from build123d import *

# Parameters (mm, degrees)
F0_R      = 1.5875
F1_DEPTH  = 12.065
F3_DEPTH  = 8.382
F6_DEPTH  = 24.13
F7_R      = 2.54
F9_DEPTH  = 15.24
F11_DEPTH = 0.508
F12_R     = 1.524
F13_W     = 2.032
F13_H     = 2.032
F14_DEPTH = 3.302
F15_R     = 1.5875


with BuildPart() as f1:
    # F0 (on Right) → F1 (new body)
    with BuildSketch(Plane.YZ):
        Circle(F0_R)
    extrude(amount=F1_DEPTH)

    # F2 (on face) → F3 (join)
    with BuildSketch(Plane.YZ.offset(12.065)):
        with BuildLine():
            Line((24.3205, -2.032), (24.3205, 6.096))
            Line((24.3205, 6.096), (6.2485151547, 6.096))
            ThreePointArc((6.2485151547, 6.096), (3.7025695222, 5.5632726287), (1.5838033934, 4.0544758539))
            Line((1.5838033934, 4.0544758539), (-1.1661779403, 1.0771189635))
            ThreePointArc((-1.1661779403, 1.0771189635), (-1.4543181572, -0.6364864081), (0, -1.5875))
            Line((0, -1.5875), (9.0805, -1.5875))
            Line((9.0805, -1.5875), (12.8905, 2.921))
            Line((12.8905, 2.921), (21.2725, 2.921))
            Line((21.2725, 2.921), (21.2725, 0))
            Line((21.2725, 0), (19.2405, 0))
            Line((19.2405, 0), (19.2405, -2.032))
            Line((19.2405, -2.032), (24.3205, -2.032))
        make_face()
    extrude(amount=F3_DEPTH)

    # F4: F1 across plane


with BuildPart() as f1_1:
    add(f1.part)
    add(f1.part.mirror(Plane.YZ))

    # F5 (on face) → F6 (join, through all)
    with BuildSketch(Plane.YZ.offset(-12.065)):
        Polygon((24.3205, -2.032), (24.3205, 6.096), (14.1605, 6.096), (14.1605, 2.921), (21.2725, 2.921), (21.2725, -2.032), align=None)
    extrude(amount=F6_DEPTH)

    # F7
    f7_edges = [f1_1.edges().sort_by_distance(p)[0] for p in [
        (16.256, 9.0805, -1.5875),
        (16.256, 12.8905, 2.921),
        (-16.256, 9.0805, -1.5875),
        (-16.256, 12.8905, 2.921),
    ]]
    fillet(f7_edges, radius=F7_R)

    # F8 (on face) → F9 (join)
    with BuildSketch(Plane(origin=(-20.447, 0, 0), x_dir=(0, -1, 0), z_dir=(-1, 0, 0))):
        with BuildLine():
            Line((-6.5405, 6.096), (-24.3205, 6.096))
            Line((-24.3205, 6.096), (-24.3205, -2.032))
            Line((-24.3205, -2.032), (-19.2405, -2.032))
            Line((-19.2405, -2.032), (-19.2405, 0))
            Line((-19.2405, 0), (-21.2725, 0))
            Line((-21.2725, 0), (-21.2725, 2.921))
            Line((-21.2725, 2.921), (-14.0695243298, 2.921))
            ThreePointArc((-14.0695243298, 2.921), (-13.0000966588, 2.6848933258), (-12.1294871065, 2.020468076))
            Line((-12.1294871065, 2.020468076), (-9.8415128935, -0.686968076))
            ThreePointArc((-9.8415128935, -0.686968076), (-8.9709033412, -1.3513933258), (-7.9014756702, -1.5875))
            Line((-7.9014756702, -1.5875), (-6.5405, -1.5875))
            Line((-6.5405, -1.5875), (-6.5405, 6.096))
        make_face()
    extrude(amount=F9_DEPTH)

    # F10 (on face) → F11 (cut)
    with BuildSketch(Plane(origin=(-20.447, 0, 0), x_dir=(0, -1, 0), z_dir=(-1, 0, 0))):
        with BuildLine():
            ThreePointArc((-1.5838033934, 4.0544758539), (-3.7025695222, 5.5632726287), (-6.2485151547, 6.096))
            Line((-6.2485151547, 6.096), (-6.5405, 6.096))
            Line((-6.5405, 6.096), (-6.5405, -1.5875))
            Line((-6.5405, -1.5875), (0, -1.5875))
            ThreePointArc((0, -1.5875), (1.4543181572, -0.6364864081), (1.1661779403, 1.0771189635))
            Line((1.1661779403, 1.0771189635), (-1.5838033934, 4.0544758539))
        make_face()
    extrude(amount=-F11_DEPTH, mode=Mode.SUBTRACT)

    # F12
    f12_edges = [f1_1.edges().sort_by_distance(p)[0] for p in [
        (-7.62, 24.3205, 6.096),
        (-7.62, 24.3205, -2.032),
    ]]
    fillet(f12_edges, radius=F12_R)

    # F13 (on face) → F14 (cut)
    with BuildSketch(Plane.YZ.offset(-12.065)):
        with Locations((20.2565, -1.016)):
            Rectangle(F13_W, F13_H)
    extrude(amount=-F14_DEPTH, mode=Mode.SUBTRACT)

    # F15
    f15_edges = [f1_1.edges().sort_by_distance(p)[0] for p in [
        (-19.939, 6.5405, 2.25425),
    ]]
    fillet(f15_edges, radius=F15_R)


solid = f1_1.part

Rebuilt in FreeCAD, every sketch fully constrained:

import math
import FreeCAD as App
import Part
import Sketcher
from FreeCAD import Vector
Q = App.Units.Quantity


def edges_at(feature, points):
    """Names of the edges that pass closest to the given points."""
    edges = feature.Shape.Edges
    near = lambda p: min(range(len(edges)), key=lambda i: edges[i].distToShape(Part.Vertex(*p))[0])
    return sorted({f"Edge{near(p) + 1}" for p in points})


def add_polygon(sketch, points):
    """Adds a closed chain of lines whose ends are joined by coincident constraints."""
    first, n = sketch.GeometryCount, len(points)
    for a, b in zip(points, points[1:] + points[:1]):
        sketch.addGeometry(Part.LineSegment(App.Vector(*a, 0), App.Vector(*b, 0)), False)
    for i in range(n):
        sketch.addConstraint(Sketcher.Constraint("Coincident", first + i, 2, first + (i + 1) % n, 1))

doc = App.newDocument("Part")
body = doc.addObject("PartDesign::Body", "Body")

# Sketch on YZ plane
sketch1 = body.newObject("Sketcher::SketchObject", "Sketch")
sketch1.AttachmentSupport = (doc.getObject("YZ_Plane"), [""])
sketch1.MapMode = "FlatFace"
sketch1.addGeometry(Part.Circle(Vector(0, 0, 0), Vector(0, 0, 1), 1.5875), False)
sketch1.addConstraint(Sketcher.Constraint("Coincident", 0, 3, -1, 1))
sketch1.addConstraint(Sketcher.Constraint("Diameter", 0, Q("0.125 in")))
pad1 = body.newObject("PartDesign::Pad", "Pad")
pad1.Profile = sketch1
pad1.Length = Q("0.475 in")

# Sketch on YZ plane
sketch2 = body.newObject("Sketcher::SketchObject", "Sketch001")
sketch2.AttachmentSupport = (doc.getObject("YZ_Plane"), [""])
sketch2.MapMode = "FlatFace"
sketch2.AttachmentOffset = App.Placement(Vector(0, 0, 0.475 * 25.4), App.Rotation())
sketch2.addGeometry(Part.LineSegment(Vector(24.3205, -2.032, 0), Vector(24.3205, 6.096, 0)), False)
sketch2.addGeometry(Part.LineSegment(Vector(24.3205, 6.096, 0), Vector(6.248515, 6.096, 0)), False)
sketch2.addGeometry(Part.ArcOfCircle(Part.Circle(Vector(6.248515, -0.254, 0), Vector(0, 0, 1), 6.35), math.radians(90), math.radians(137.273451)), False)
sketch2.addGeometry(Part.LineSegment(Vector(1.583803, 4.054476, 0), Vector(-1.166178, 1.077119, 0)), False)
sketch2.addGeometry(Part.ArcOfCircle(Part.Circle(Vector(0, 0, 0), Vector(0, 0, 1), 1.5875), math.radians(137.273451), math.radians(270)), False)
sketch2.addGeometry(Part.LineSegment(Vector(0, -1.5875, 0), Vector(9.0805, -1.5875, 0)), False)
sketch2.addGeometry(Part.LineSegment(Vector(9.0805, -1.5875, 0), Vector(12.8905, 2.921, 0)), False)
sketch2.addGeometry(Part.LineSegment(Vector(12.8905, 2.921, 0), Vector(21.2725, 2.921, 0)), False)
sketch2.addGeometry(Part.LineSegment(Vector(21.2725, 2.921, 0), Vector(21.2725, 0, 0)), False)
sketch2.addGeometry(Part.LineSegment(Vector(21.2725, 0, 0), Vector(19.2405, 0, 0)), False)
sketch2.addGeometry(Part.LineSegment(Vector(19.2405, 0, 0), Vector(19.2405, -2.032, 0)), False)
sketch2.addGeometry(Part.LineSegment(Vector(19.2405, -2.032, 0), Vector(24.3205, -2.032, 0)), False)
sketch2.addConstraint(Sketcher.Constraint("Coincident", 0, 2, 1, 1))
sketch2.addConstraint(Sketcher.Constraint("Tangent", 1, 2, 2, 1))
sketch2.addConstraint(Sketcher.Constraint("Tangent", 2, 2, 3, 1))
sketch2.addConstraint(Sketcher.Constraint("Tangent", 3, 2, 4, 1))
sketch2.addConstraint(Sketcher.Constraint("Tangent", 4, 2, 5, 1))
sketch2.addConstraint(Sketcher.Constraint("Coincident", 5, 2, 6, 1))
sketch2.addConstraint(Sketcher.Constraint("Coincident", 6, 2, 7, 1))
sketch2.addConstraint(Sketcher.Constraint("Coincident", 7, 2, 8, 1))
sketch2.addConstraint(Sketcher.Constraint("Coincident", 8, 2, 9, 1))
sketch2.addConstraint(Sketcher.Constraint("Coincident", 9, 2, 10, 1))
sketch2.addConstraint(Sketcher.Constraint("Coincident", 10, 2, 11, 1))
sketch2.addConstraint(Sketcher.Constraint("Coincident", 11, 2, 0, 1))
sketch2.addConstraint(Sketcher.Constraint("Vertical", 0))
sketch2.addConstraint(Sketcher.Constraint("Horizontal", 1))
sketch2.addConstraint(Sketcher.Constraint("Horizontal", 5))
sketch2.addConstraint(Sketcher.Constraint("Horizontal", 7))
sketch2.addConstraint(Sketcher.Constraint("Vertical", 8))
sketch2.addConstraint(Sketcher.Constraint("Horizontal", 9))
sketch2.addConstraint(Sketcher.Constraint("Vertical", 10))
sketch2.addConstraint(Sketcher.Constraint("Horizontal", 11))
sketch2.addConstraint(Sketcher.Constraint("Coincident", 4, 3, -1, 1))
sketch2.addConstraint(Sketcher.Constraint("PointOnObject", 8, 2, -1))
sketch2.addConstraint(Sketcher.Constraint("Equal", 9, 10))
sketch2.addConstraint(Sketcher.Constraint("Radius", 2, Q("0.25 in")))
sketch2.addConstraint(Sketcher.Constraint("DistanceX", 11, 1, 11, 2, Q("0.2 in")))
sketch2.addConstraint(Sketcher.Constraint("Radius", 4, Q("0.0625 in")))
sketch2.addConstraint(Sketcher.Constraint("DistanceX", 7, 1, 7, 2, Q("0.33 in")))
sketch2.addConstraint(Sketcher.Constraint("DistanceX", 9, 2, 9, 1, Q("0.08 in")))
sketch2.addConstraint(Sketcher.Constraint("DistanceY", 0, 1, 0, 2, Q("0.32 in")))
sketch2.addConstraint(Sketcher.Constraint("DistanceX", 5, 2, 9, 2, Q("0.4 in")))
sketch2.addConstraint(Sketcher.Constraint("DistanceY", 8, 2, 8, 1, Q("0.115 in")))
sketch2.addConstraint(Sketcher.Constraint("DistanceX", 5, 1, 5, 2, Q("0.3575 in")))
sketch2.addConstraint(Sketcher.Constraint("Distance", 3, Q("4.05303 mm")))
pad2 = body.newObject("PartDesign::Pad", "Pad001")
pad2.Profile = sketch2
pad2.Length = Q("0.33 in")
body2 = doc.addObject("PartDesign::Body", "Body001")
doc.recompute()

body2.BaseFeature = body
doc.recompute()

mirroring = doc.addObject("Part::Mirroring", "Mirroring")
mirroring.Source = body
mirroring.Base = Vector(0, 0, 0)
mirroring.Normal = Vector(1, 0, 0)
body3 = doc.addObject("PartDesign::Body", "Body002")
body3.BaseFeature = mirroring
boolean = body2.newObject("PartDesign::Boolean", "Boolean")
boolean.Type = "Fuse"
boolean.addObjects([body3])
doc.recompute()

# Sketch on YZ plane
sketch3 = body2.newObject("Sketcher::SketchObject", "Sketch002")
sketch3.AttachmentSupport = (doc.getObject("YZ_Plane001"), [""])
sketch3.MapMode = "FlatFace"
sketch3.AttachmentOffset = App.Placement(Vector(0, 0, -0.475 * 25.4), App.Rotation())
add_polygon(sketch3, [(24.3205, -2.032), (24.3205, 6.096), (14.1605, 6.096), (14.1605, 2.921), (21.2725, 2.921), (21.2725, -2.032)])  # lines 0-5
sketch3.addConstraint(Sketcher.Constraint("Vertical", 0))
sketch3.addConstraint(Sketcher.Constraint("Horizontal", 1))
sketch3.addConstraint(Sketcher.Constraint("Vertical", 2))
sketch3.addConstraint(Sketcher.Constraint("Horizontal", 3))
sketch3.addConstraint(Sketcher.Constraint("Vertical", 4))
sketch3.addConstraint(Sketcher.Constraint("Horizontal", 5))
sketch3.addConstraint(Sketcher.Constraint("DistanceX", 1, 2, 1, 1, Q("0.4 in")))
sketch3.addConstraint(Sketcher.Constraint("DistanceX", 3, 1, 3, 2, Q("0.28 in")))
sketch3.addConstraint(Sketcher.Constraint("DistanceY", 0, 1, 0, 2, Q("0.32 in")))
sketch3.addConstraint(Sketcher.Constraint("DistanceY", 2, 2, 2, 1, Q("0.125 in")))
sketch3.addConstraint(Sketcher.Constraint("DistanceY", -1, 1, 0, 2, Q("0.24 in")))
sketch3.addConstraint(Sketcher.Constraint("DistanceX", -1, 1, 0, 2, Q("0.9575 in")))
pad3 = body2.newObject("PartDesign::Pad", "Pad002")
pad3.Profile = sketch3
pad3.Type = "UpToLast"
doc.recompute()

fillet = body2.newObject("PartDesign::Fillet", "Fillet")
fillet.Base = (pad3, edges_at(pad3, [
    (16.256, 9.081, -1.587),
    (16.256, 12.89, 2.921),
    (-16.256, 9.081, -1.587),
    (-16.256, 12.89, 2.921),
]))
fillet.Radius = Q("0.1 in")

# Sketch on YZ plane
sketch4 = body2.newObject("Sketcher::SketchObject", "Sketch003")
sketch4.AttachmentSupport = (doc.getObject("YZ_Plane001"), [""])
sketch4.MapMode = "FlatFace"
sketch4.AttachmentOffset = App.Placement(Vector(0, 0, -0.805 * 25.4), App.Rotation())
sketch4.addGeometry(Part.LineSegment(Vector(6.5405, 6.096, 0), Vector(24.3205, 6.096, 0)), False)
sketch4.addGeometry(Part.LineSegment(Vector(24.3205, 6.096, 0), Vector(24.3205, -2.032, 0)), False)
sketch4.addGeometry(Part.LineSegment(Vector(24.3205, -2.032, 0), Vector(19.2405, -2.032, 0)), False)
sketch4.addGeometry(Part.LineSegment(Vector(19.2405, -2.032, 0), Vector(19.2405, 0, 0)), False)
sketch4.addGeometry(Part.LineSegment(Vector(19.2405, 0, 0), Vector(21.2725, 0, 0)), False)
sketch4.addGeometry(Part.LineSegment(Vector(21.2725, 0, 0), Vector(21.2725, 2.921, 0)), False)
sketch4.addGeometry(Part.LineSegment(Vector(21.2725, 2.921, 0), Vector(14.069524, 2.921, 0)), False)
sketch4.addGeometry(Part.ArcOfCircle(Part.Circle(Vector(14.069524, 0.381, 0), Vector(0, 0, 1), 2.54), math.radians(90), math.radians(139.799836)), False)
sketch4.addGeometry(Part.LineSegment(Vector(12.129487, 2.020468, 0), Vector(9.841513, -0.686968, 0)), False)
sketch4.addGeometry(Part.ArcOfCircle(Part.Circle(Vector(7.901476, 0.9525, 0), Vector(0, 0, 1), 2.54), math.radians(-90), math.radians(-40.200164)), False)
sketch4.addGeometry(Part.LineSegment(Vector(7.901476, -1.5875, 0), Vector(6.5405, -1.5875, 0)), False)
sketch4.addGeometry(Part.LineSegment(Vector(6.5405, -1.5875, 0), Vector(6.5405, 6.096, 0)), False)
sketch4.addConstraint(Sketcher.Constraint("Coincident", 0, 2, 1, 1))
sketch4.addConstraint(Sketcher.Constraint("Coincident", 1, 2, 2, 1))
sketch4.addConstraint(Sketcher.Constraint("Coincident", 2, 2, 3, 1))
sketch4.addConstraint(Sketcher.Constraint("Coincident", 3, 2, 4, 1))
sketch4.addConstraint(Sketcher.Constraint("Coincident", 4, 2, 5, 1))
sketch4.addConstraint(Sketcher.Constraint("Coincident", 5, 2, 6, 1))
sketch4.addConstraint(Sketcher.Constraint("Tangent", 6, 2, 7, 1))
sketch4.addConstraint(Sketcher.Constraint("Tangent", 7, 2, 8, 1))
sketch4.addConstraint(Sketcher.Constraint("Tangent", 8, 2, 9, 2))
sketch4.addConstraint(Sketcher.Constraint("Tangent", 9, 1, 10, 1))
sketch4.addConstraint(Sketcher.Constraint("Coincident", 10, 2, 11, 1))
sketch4.addConstraint(Sketcher.Constraint("Coincident", 11, 2, 0, 1))
sketch4.addConstraint(Sketcher.Constraint("Horizontal", 0))
sketch4.addConstraint(Sketcher.Constraint("Vertical", 1))
sketch4.addConstraint(Sketcher.Constraint("Horizontal", 2))
sketch4.addConstraint(Sketcher.Constraint("Vertical", 3))
sketch4.addConstraint(Sketcher.Constraint("Horizontal", 4))
sketch4.addConstraint(Sketcher.Constraint("Vertical", 5))
sketch4.addConstraint(Sketcher.Constraint("Horizontal", 6))
sketch4.addConstraint(Sketcher.Constraint("Horizontal", 10))
sketch4.addConstraint(Sketcher.Constraint("Vertical", 11))
sketch4.addConstraint(Sketcher.Constraint("Equal", 7, 9))
sketch4.addConstraint(Sketcher.Constraint("PointOnObject", 3, 2, -1))
sketch4.addConstraint(Sketcher.Constraint("Equal", 4, 3))
sketch4.addConstraint(Sketcher.Constraint("Radius", 7, Q("0.1 in")))
sketch4.addConstraint(Sketcher.Constraint("DistanceX", 0, 1, 0, 2, Q("0.7 in")))
sketch4.addConstraint(Sketcher.Constraint("DistanceX", 2, 2, 2, 1, Q("0.2 in")))
sketch4.addConstraint(Sketcher.Constraint("DistanceX", 4, 1, 4, 2, Q("0.08 in")))
sketch4.addConstraint(Sketcher.Constraint("DistanceY", 1, 2, 1, 1, Q("0.32 in")))
sketch4.addConstraint(Sketcher.Constraint("DistanceY", 5, 1, 5, 2, Q("0.115 in")))
sketch4.addConstraint(Sketcher.Constraint("DistanceY", 11, 1, 11, 2, Q("0.3025 in")))
sketch4.addConstraint(Sketcher.Constraint("DistanceX", -1, 1, 0, 2, Q("0.9575 in")))
sketch4.addConstraint(Sketcher.Constraint("Distance", 8, Q("3.54472 mm")))
sketch4.addConstraint(Sketcher.Constraint("DistanceX", 6, 2, 6, 1, Q("7.202976 mm")))
pad4 = body2.newObject("PartDesign::Pad", "Pad003")
pad4.Profile = sketch4
pad4.Length = Q("0.6 in")
pad4.Reversed = True

# Sketch on YZ plane
sketch5 = body2.newObject("Sketcher::SketchObject", "Sketch004")
sketch5.AttachmentSupport = (doc.getObject("YZ_Plane001"), [""])
sketch5.MapMode = "FlatFace"
sketch5.AttachmentOffset = App.Placement(Vector(0, 0, -0.805 * 25.4), App.Rotation())
sketch5.addGeometry(Part.ArcOfCircle(Part.Circle(Vector(6.248515, -0.254, 0), Vector(0, 0, 1), 6.35), math.radians(90), math.radians(137.273451)), False)
sketch5.addGeometry(Part.LineSegment(Vector(6.248515, 6.096, 0), Vector(6.5405, 6.096, 0)), False)
sketch5.addGeometry(Part.LineSegment(Vector(6.5405, 6.096, 0), Vector(6.5405, -1.5875, 0)), False)
sketch5.addGeometry(Part.LineSegment(Vector(6.5405, -1.5875, 0), Vector(0, -1.5875, 0)), False)
sketch5.addGeometry(Part.ArcOfCircle(Part.Circle(Vector(0, 0, 0), Vector(0, 0, 1), 1.5875), math.radians(137.273451), math.radians(270)), False)
sketch5.addGeometry(Part.LineSegment(Vector(-1.166178, 1.077119, 0), Vector(1.583803, 4.054476, 0)), False)
sketch5.addConstraint(Sketcher.Constraint("Tangent", 0, 1, 1, 1))
sketch5.addConstraint(Sketcher.Constraint("Coincident", 1, 2, 2, 1))
sketch5.addConstraint(Sketcher.Constraint("Coincident", 2, 2, 3, 1))
sketch5.addConstraint(Sketcher.Constraint("Tangent", 3, 2, 4, 2))
sketch5.addConstraint(Sketcher.Constraint("Tangent", 4, 1, 5, 1))
sketch5.addConstraint(Sketcher.Constraint("Tangent", 5, 2, 0, 2))
sketch5.addConstraint(Sketcher.Constraint("Horizontal", 1))
sketch5.addConstraint(Sketcher.Constraint("Vertical", 2))
sketch5.addConstraint(Sketcher.Constraint("Horizontal", 3))
sketch5.addConstraint(Sketcher.Constraint("Coincident", 4, 3, -1, 1))
sketch5.addConstraint(Sketcher.Constraint("Radius", 0, Q("0.25 in")))
sketch5.addConstraint(Sketcher.Constraint("Radius", 4, Q("0.0625 in")))
sketch5.addConstraint(Sketcher.Constraint("DistanceY", 0, 3, -1, 1, Q("0.01 in")))
sketch5.addConstraint(Sketcher.Constraint("DistanceX", 3, 2, 3, 1, Q("0.2575 in")))
sketch5.addConstraint(Sketcher.Constraint("Distance", 5, Q("4.05303 mm")))
pocket1 = body2.newObject("PartDesign::Pocket", "Pocket")
pocket1.Profile = sketch5
pocket1.Length = Q("0.02 in")
pocket1.Reversed = True
doc.recompute()

fillet2 = body2.newObject("PartDesign::Fillet", "Fillet001")
fillet2.Base = (pocket1, edges_at(pocket1, [(-7.62, 24.32, 6.096), (-7.62, 24.32, -2.032)]))
fillet2.Radius = Q("0.06 in")

# Sketch on YZ plane
sketch6 = body2.newObject("Sketcher::SketchObject", "Sketch005")
sketch6.AttachmentSupport = (doc.getObject("YZ_Plane001"), [""])
sketch6.MapMode = "FlatFace"
sketch6.AttachmentOffset = App.Placement(Vector(0, 0, -0.475 * 25.4), App.Rotation())
add_polygon(sketch6, [(19.2405, 0), (19.2405, -2.032), (21.2725, -2.032), (21.2725, 0)])  # lines 0-3
sketch6.addConstraint(Sketcher.Constraint("Vertical", 0))
sketch6.addConstraint(Sketcher.Constraint("Horizontal", 1))
sketch6.addConstraint(Sketcher.Constraint("Vertical", 2))
sketch6.addConstraint(Sketcher.Constraint("Horizontal", 3))
sketch6.addConstraint(Sketcher.Constraint("PointOnObject", 2, 2, -1))
sketch6.addConstraint(Sketcher.Constraint("Equal", 3, 0))
sketch6.addConstraint(Sketcher.Constraint("DistanceX", 1, 1, 1, 2, Q("0.08 in")))
sketch6.addConstraint(Sketcher.Constraint("DistanceX", -1, 1, 0, 2, Q("0.7575 in")))
pocket2 = body2.newObject("PartDesign::Pocket", "Pocket001")
pocket2.Profile = sketch6
pocket2.Length = Q("0.13 in")
doc.recompute()

fillet3 = body2.newObject("PartDesign::Fillet", "Fillet002")
fillet3.Base = (pocket2, edges_at(pocket2, [(-19.939, 6.54, 2.254)]))
fillet3.Radius = Q("0.0625 in")
mirroring.Visibility = False

doc.recompute()
